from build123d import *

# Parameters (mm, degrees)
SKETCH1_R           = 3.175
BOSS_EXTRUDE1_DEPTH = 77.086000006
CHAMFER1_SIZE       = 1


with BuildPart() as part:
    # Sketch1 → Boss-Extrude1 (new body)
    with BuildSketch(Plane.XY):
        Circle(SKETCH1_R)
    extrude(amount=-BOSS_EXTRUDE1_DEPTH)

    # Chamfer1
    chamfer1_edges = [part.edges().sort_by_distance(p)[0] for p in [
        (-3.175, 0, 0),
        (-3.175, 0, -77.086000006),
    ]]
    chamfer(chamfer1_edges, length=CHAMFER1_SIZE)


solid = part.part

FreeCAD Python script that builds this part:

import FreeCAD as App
import Part
import Sketcher

V = App.Vector
Q = App.Units.Quantity


def edges_at(feature, points):
    """Names of the edges that pass closest to the given points."""
    edges = feature.Shape.Edges
    near = lambda p: min(range(len(edges)), key=lambda i: edges[i].distToShape(Part.Vertex(*p))[0])
    return sorted({f"Edge{near(p) + 1}" for p in points})

doc = App.newDocument("Part")
body = doc.addObject("PartDesign::Body", "Body")

# Sketch on XY plane
sketch1 = doc.addObject("Sketcher::SketchObject", "Sketch")
body.addObject(sketch1)
sketch1.AttachmentSupport = (doc.XY_Plane, [""])
sketch1.MapMode = "FlatFace"
sketch1.addGeometry(Part.Circle(V(0, 0, 0), V(0, 0, 1), 3.175), False)
sketch1.addConstraint([
    Sketcher.Constraint("Coincident", 0, 3, -1, 1),
    Sketcher.Constraint("Diameter", 0, Q("6.35 mm")),
])
pad1 = doc.addObject("PartDesign::Pad", "Pad")
body.addObject(pad1)
pad1.Profile = sketch1
pad1.Length = 77.086
pad1.Reversed = True
doc.recompute()

chamfer = doc.addObject("PartDesign::Chamfer", "Chamfer")
body.addObject(chamfer)
chamfer.Base = (pad1, edges_at(pad1, [(-3.175, 0, 0), (-3.175, 0, -77.086)]))
chamfer.Size = 1

doc.recompute()
